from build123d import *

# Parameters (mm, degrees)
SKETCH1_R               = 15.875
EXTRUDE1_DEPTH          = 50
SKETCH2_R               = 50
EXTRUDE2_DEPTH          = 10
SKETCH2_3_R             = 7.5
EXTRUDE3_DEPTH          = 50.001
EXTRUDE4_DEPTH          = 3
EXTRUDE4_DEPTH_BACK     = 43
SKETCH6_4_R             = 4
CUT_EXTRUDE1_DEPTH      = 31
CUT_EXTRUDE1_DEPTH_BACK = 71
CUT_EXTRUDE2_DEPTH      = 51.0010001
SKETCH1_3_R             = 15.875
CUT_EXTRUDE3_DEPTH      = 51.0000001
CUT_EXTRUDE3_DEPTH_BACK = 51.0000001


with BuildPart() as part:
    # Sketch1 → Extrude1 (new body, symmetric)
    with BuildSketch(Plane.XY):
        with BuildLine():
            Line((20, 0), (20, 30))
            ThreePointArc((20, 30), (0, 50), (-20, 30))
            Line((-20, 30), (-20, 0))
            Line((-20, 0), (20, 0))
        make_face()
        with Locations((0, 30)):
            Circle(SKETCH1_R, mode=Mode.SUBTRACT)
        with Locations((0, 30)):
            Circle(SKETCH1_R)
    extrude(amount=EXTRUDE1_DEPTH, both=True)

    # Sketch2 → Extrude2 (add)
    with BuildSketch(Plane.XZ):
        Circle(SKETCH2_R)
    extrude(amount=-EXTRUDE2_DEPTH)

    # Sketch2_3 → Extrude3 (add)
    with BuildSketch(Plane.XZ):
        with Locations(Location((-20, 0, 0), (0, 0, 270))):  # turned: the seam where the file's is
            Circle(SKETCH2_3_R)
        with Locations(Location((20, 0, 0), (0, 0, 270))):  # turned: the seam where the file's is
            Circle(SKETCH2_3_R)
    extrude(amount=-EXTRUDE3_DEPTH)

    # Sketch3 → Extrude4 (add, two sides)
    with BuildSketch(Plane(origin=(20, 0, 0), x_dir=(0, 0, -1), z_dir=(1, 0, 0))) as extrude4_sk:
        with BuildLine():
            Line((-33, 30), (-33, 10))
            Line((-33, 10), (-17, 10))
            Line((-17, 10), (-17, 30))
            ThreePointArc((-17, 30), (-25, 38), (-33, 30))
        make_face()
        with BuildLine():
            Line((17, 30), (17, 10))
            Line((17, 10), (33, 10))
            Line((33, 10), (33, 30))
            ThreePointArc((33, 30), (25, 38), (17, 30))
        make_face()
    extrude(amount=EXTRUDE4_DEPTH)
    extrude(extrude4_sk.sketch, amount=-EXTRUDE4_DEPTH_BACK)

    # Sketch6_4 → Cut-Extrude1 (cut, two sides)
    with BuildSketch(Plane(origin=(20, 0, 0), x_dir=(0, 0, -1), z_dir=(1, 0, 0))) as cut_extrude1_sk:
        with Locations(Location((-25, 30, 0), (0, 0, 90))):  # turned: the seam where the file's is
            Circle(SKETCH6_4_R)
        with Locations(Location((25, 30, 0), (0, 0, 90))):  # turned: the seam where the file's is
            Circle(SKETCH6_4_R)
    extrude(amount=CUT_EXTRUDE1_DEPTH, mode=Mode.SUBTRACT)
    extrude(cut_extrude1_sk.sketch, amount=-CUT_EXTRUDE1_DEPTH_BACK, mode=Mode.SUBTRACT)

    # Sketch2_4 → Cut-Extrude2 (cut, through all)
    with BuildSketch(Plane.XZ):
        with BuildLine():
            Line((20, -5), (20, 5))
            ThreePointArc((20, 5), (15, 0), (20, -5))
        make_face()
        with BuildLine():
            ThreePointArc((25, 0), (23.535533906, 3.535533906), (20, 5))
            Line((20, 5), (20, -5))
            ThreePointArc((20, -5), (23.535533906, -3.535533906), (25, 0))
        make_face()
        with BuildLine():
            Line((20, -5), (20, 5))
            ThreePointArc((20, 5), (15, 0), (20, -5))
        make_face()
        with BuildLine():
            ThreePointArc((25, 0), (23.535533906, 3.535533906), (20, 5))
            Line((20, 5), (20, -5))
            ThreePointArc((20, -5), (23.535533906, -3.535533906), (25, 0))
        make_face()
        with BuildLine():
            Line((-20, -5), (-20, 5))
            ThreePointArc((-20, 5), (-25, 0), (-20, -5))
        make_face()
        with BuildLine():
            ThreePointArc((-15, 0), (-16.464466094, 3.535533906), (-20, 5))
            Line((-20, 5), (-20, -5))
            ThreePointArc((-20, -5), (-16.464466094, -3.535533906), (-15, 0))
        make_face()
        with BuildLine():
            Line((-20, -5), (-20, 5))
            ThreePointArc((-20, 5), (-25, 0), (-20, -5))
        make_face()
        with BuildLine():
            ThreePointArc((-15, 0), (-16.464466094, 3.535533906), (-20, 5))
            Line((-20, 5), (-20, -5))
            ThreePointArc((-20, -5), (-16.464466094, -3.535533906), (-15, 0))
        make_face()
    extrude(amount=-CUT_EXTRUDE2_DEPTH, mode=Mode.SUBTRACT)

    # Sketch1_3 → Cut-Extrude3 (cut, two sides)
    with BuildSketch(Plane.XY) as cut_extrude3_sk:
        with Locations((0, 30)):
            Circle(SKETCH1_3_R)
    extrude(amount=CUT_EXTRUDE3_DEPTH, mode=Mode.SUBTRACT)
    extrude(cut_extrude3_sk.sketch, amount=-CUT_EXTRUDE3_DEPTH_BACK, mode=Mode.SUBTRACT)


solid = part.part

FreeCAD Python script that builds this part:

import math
import FreeCAD as App
import Part
import Sketcher

V = App.Vector
Q = App.Units.Quantity

doc = App.newDocument("Part")
params = doc.addObject("Spreadsheet::Sheet", "Params")
for row, (alias, value) in enumerate([
    ("sketch1_radius", "20 mm"),
    ("sketch1_height", "30 mm"),
    ("pad1_length", "100 mm"),
    ("sketch2_diameter", "100 mm"),
    ("pad2_length", "10 mm"),
    ("sketch3_diameter", "15 mm"),
    ("pad3_length", "50.001 mm"),
    ("sketch4_radius", "8 mm"),
    ("sketch4_width", "20 mm"),
    ("pad4_length", "3 mm"),
    ("pad4_length2", "43 mm"),
    ("sketch5_diameter", "8 mm"),
    ("sketch6_radius", "5 mm"),
    ("sketch7_diameter", "31.75 mm"),
], start=1):
    params.set(f"A{row}", alias)
    params.set(f"B{row}", "=" + value)
    params.setAlias(f"B{row}", alias)

body = doc.addObject("PartDesign::Body", "Body")

sketch1 = body.newObject("Sketcher::SketchObject", "Sketch")
sketch1.AttachmentSupport = (doc.getObject("XY_Plane"), [""])
sketch1.MapMode = "FlatFace"
sketch1.addGeometry([
    Part.LineSegment(V(20, 0, 0), V(20, 30, 0)),
    Part.ArcOfCircle(Part.Circle(V(0, 30, 0), V(0, 0, 1), 20), math.radians(0), math.radians(180)),
    Part.LineSegment(V(-20, 30, 0), V(-20, 0, 0)),
    Part.LineSegment(V(-20, 0, 0), V(20, 0, 0)),
], False)
sketch1.addConstraint([
    Sketcher.Constraint("Tangent", 0, 2, 1, 1),
    Sketcher.Constraint("Tangent", 1, 2, 2, 1),
    Sketcher.Constraint("Coincident", 2, 2, 3, 1),
    Sketcher.Constraint("Coincident", 3, 2, 0, 1),
    Sketcher.Constraint("Vertical", 0),
    Sketcher.Constraint("Vertical", 2),
    Sketcher.Constraint("Horizontal", 3),
    Sketcher.Constraint("Symmetric", 2, 2, 3, 2, -1, 1),
    Sketcher.Constraint("Radius", 1, Q("20 mm")),
    Sketcher.Constraint("DistanceY", 0, 1, 0, 2, Q("30 mm")),
])
sketch1.setExpression("Constraints[8]", "Params.sketch1_radius")
sketch1.setExpression("Constraints[9]", "Params.sketch1_height")
pad1 = body.newObject("PartDesign::Pad", "Pad")
pad1.Profile = sketch1
pad1.setExpression("Length", "Params.pad1_length")
pad1.Midplane = True

sketch2 = body.newObject("Sketcher::SketchObject", "Sketch001")
sketch2.AttachmentSupport = (doc.getObject("XZ_Plane"), [""])
sketch2.MapMode = "FlatFace"
sketch2.addGeometry(Part.Circle(V(0, 0, 0), V(0, 0, 1), 50), False)
sketch2.addConstraint([
    Sketcher.Constraint("Coincident", 0, 3, -1, 1),
    Sketcher.Constraint("Diameter", 0, Q("100 mm")),
])
sketch2.setExpression("Constraints[1]", "Params.sketch2_diameter")
pad2 = body.newObject("PartDesign::Pad", "Pad001")
pad2.Profile = sketch2
pad2.setExpression("Length", "Params.pad2_length")
pad2.Reversed = True

sketch3 = body.newObject("Sketcher::SketchObject", "Sketch002")
sketch3.AttachmentSupport = (doc.getObject("XZ_Plane"), [""])
sketch3.MapMode = "FlatFace"
sketch3.addGeometry([
    Part.Circle(V(-20, 0, 0), V(0, 0, 1), 7.5),
    Part.Circle(V(20, 0, 0), V(0, 0, 1), 7.5),
], False)
sketch3.addConstraint([
    Sketcher.Constraint("Equal", 0, 1),
    Sketcher.Constraint("Symmetric", 0, 3, 1, 3, -1, 1),
    Sketcher.Constraint("PointOnObject", 0, 3, -1),
    Sketcher.Constraint("Diameter", 0, Q("15 mm")),
    Sketcher.Constraint("DistanceX", 0, 3, -1, 1, Q("20 mm")),
])
sketch3.setExpression("Constraints[3]", "Params.sketch3_diameter")
pad3 = body.newObject("PartDesign::Pad", "Pad002")
pad3.Profile = sketch3
pad3.setExpression("Length", "Params.pad3_length")
pad3.Reversed = True

sketch4 = body.newObject("Sketcher::SketchObject", "Sketch003")
sketch4.AttachmentSupport = (doc.getObject("YZ_Plane"), [""])
sketch4.MapMode = "FlatFace"
sketch4.AttachmentOffset = App.Placement(V(0, 0, 20), App.Rotation())
sketch4.addGeometry([
    Part.LineSegment(V(30, 33, 0), V(10, 33, 0)),
    Part.LineSegment(V(10, 33, 0), V(10, 17, 0)),
    Part.LineSegment(V(10, 17, 0), V(30, 17, 0)),
    Part.ArcOfCircle(Part.Circle(V(30, 25, 0), V(0, 0, 1), 8), math.radians(-90), math.radians(90)),
    Part.LineSegment(V(30, -17, 0), V(10, -17, 0)),
    Part.LineSegment(V(10, -17, 0), V(10, -33, 0)),
    Part.LineSegment(V(10, -33, 0), V(30, -33, 0)),
    Part.ArcOfCircle(Part.Circle(V(30, -25, 0), V(0, 0, 1), 8), math.radians(-90), math.radians(90)),
], False)
sketch4.addConstraint([
    Sketcher.Constraint("Coincident", 0, 2, 1, 1),
    Sketcher.Constraint("Coincident", 1, 2, 2, 1),
    Sketcher.Constraint("Tangent", 2, 2, 3, 1),
    Sketcher.Constraint("Tangent", 3, 2, 0, 1),
    Sketcher.Constraint("Coincident", 4, 2, 5, 1),
    Sketcher.Constraint("Coincident", 5, 2, 6, 1),
    Sketcher.Constraint("Tangent", 6, 2, 7, 1),
    Sketcher.Constraint("Tangent", 7, 2, 4, 1),
    Sketcher.Constraint("Horizontal", 0),
    Sketcher.Constraint("Vertical", 1),
    Sketcher.Constraint("Horizontal", 2),
    Sketcher.Constraint("Horizontal", 4),
    Sketcher.Constraint("Vertical", 5),
    Sketcher.Constraint("Horizontal", 6),
    Sketcher.Constraint("Equal", 3, 7),
    Sketcher.Constraint("Symmetric", 3, 3, 7, 3, -1),
    Sketcher.Constraint("Vertical", 1, 2, 4, 2),
    Sketcher.Constraint("Radius", 3, Q("8 mm")),
    Sketcher.Constraint("DistanceX", 0, 2, 0, 1, Q("20 mm")),
    Sketcher.Constraint("DistanceX", -1, 1, 3, 3, Q("30 mm")),
    Sketcher.Constraint("DistanceY", -1, 1, 3, 3, Q("25 mm")),
])
sketch4.setExpression("Constraints[17]", "Params.sketch4_radius")
sketch4.setExpression("Constraints[18]", "Params.sketch4_width")
pad4 = body.newObject("PartDesign::Pad", "Pad003")
pad4.Profile = sketch4
pad4.Type = "TwoLengths"
pad4.setExpression("Length", "Params.pad4_length")
pad4.setExpression("Length2", "Params.pad4_length2")

sketch5 = body.newObject("Sketcher::SketchObject", "Sketch004")
sketch5.AttachmentSupport = (doc.getObject("YZ_Plane"), [""])
sketch5.MapMode = "FlatFace"
sketch5.AttachmentOffset = App.Placement(V(0, 0, 20), App.Rotation())
sketch5.addGeometry([
    Part.Circle(V(30, 25, 0), V(0, 0, 1), 4),
    Part.Circle(V(30, -25, 0), V(0, 0, 1), 4),
], False)
sketch5.addConstraint([
    Sketcher.Constraint("Equal", 0, 1),
    Sketcher.Constraint("Symmetric", 0, 3, 1, 3, -1),
    Sketcher.Constraint("Diameter", 0, Q("8 mm")),
    Sketcher.Constraint("DistanceX", -1, 1, 0, 3, Q("30 mm")),
    Sketcher.Constraint("DistanceY", -1, 1, 0, 3, Q("25 mm")),
])
sketch5.setExpression("Constraints[2]", "Params.sketch5_diameter")
pocket1 = body.newObject("PartDesign::Pocket", "Pocket")
pocket1.Profile = sketch5
pocket1.Type = "ThroughAll"
pocket1.Midplane = True

sketch6 = body.newObject("Sketcher::SketchObject", "Sketch005")
sketch6.AttachmentSupport = (doc.getObject("XZ_Plane"), [""])
sketch6.MapMode = "FlatFace"
sketch6.addGeometry([
    Part.ArcOfCircle(Part.Circle(V(20, 0, 0), V(0, 0, 1), 5), math.radians(90), math.radians(270)),
    Part.ArcOfCircle(Part.Circle(V(20, 0, 0), V(0, 0, 1), 5), math.radians(-90), math.radians(0)),
    Part.ArcOfCircle(Part.Circle(V(20, 0, 0), V(0, 0, 1), 5), math.radians(0), math.radians(90)),
    Part.ArcOfCircle(Part.Circle(V(-20, 0, 0), V(0, 0, 1), 5), math.radians(90), math.radians(270)),
    Part.ArcOfCircle(Part.Circle(V(-20, 0, 0), V(0, 0, 1), 5), math.radians(-90), math.radians(0)),
    Part.ArcOfCircle(Part.Circle(V(-20, 0, 0), V(0, 0, 1), 5), math.radians(0), math.radians(90)),
], False)
sketch6.addConstraint([
    Sketcher.Constraint("Tangent", 0, 2, 1, 1),
    Sketcher.Constraint("Tangent", 1, 2, 2, 1),
    Sketcher.Constraint("Tangent", 2, 2, 0, 1),
    Sketcher.Constraint("Tangent", 3, 2, 4, 1),
    Sketcher.Constraint("Tangent", 4, 2, 5, 1),
    Sketcher.Constraint("Tangent", 5, 2, 3, 1),
    Sketcher.Constraint("Equal", 2, 3),
    Sketcher.Constraint("Symmetric", 0, 3, 3, 3, -1, 1),
    Sketcher.Constraint("Symmetric", 0, 2, 3, 2, -2),
    Sketcher.Constraint("PointOnObject", 1, 2, -1),
    Sketcher.Constraint("PointOnObject", 4, 2, -1),
    Sketcher.Constraint("Vertical", 2, 3, 0, 2),
    Sketcher.Constraint("Vertical", 0, 2, 2, 2),
    Sketcher.Constraint("Vertical", 3, 2, 5, 2),
    Sketcher.Constraint("Radius", 0, Q("5 mm")),
    Sketcher.Constraint("DistanceX", -1, 1, 0, 3, Q("20 mm")),
])
sketch6.setExpression("Constraints[14]", "Params.sketch6_radius")
pocket2 = body.newObject("PartDesign::Pocket", "Pocket001")
pocket2.Profile = sketch6
pocket2.Type = "ThroughAll"

sketch7 = body.newObject("Sketcher::SketchObject", "Sketch006")
sketch7.AttachmentSupport = (doc.getObject("XY_Plane"), [""])
sketch7.MapMode = "FlatFace"
sketch7.addGeometry(Part.Circle(V(0, 30, 0), V(0, 0, 1), 15.875), False)
sketch7.addConstraint([
    Sketcher.Constraint("PointOnObject", 0, 3, -2),
    Sketcher.Constraint("Diameter", 0, Q("31.75 mm")),
    Sketcher.Constraint("DistanceY", -1, 1, 0, 3, Q("30 mm")),
])
sketch7.setExpression("Constraints[1]", "Params.sketch7_diameter")
pocket3 = body.newObject("PartDesign::Pocket", "Pocket002")
pocket3.Profile = sketch7
pocket3.Type = "ThroughAll"
pocket3.Midplane = True

doc.recompute()
